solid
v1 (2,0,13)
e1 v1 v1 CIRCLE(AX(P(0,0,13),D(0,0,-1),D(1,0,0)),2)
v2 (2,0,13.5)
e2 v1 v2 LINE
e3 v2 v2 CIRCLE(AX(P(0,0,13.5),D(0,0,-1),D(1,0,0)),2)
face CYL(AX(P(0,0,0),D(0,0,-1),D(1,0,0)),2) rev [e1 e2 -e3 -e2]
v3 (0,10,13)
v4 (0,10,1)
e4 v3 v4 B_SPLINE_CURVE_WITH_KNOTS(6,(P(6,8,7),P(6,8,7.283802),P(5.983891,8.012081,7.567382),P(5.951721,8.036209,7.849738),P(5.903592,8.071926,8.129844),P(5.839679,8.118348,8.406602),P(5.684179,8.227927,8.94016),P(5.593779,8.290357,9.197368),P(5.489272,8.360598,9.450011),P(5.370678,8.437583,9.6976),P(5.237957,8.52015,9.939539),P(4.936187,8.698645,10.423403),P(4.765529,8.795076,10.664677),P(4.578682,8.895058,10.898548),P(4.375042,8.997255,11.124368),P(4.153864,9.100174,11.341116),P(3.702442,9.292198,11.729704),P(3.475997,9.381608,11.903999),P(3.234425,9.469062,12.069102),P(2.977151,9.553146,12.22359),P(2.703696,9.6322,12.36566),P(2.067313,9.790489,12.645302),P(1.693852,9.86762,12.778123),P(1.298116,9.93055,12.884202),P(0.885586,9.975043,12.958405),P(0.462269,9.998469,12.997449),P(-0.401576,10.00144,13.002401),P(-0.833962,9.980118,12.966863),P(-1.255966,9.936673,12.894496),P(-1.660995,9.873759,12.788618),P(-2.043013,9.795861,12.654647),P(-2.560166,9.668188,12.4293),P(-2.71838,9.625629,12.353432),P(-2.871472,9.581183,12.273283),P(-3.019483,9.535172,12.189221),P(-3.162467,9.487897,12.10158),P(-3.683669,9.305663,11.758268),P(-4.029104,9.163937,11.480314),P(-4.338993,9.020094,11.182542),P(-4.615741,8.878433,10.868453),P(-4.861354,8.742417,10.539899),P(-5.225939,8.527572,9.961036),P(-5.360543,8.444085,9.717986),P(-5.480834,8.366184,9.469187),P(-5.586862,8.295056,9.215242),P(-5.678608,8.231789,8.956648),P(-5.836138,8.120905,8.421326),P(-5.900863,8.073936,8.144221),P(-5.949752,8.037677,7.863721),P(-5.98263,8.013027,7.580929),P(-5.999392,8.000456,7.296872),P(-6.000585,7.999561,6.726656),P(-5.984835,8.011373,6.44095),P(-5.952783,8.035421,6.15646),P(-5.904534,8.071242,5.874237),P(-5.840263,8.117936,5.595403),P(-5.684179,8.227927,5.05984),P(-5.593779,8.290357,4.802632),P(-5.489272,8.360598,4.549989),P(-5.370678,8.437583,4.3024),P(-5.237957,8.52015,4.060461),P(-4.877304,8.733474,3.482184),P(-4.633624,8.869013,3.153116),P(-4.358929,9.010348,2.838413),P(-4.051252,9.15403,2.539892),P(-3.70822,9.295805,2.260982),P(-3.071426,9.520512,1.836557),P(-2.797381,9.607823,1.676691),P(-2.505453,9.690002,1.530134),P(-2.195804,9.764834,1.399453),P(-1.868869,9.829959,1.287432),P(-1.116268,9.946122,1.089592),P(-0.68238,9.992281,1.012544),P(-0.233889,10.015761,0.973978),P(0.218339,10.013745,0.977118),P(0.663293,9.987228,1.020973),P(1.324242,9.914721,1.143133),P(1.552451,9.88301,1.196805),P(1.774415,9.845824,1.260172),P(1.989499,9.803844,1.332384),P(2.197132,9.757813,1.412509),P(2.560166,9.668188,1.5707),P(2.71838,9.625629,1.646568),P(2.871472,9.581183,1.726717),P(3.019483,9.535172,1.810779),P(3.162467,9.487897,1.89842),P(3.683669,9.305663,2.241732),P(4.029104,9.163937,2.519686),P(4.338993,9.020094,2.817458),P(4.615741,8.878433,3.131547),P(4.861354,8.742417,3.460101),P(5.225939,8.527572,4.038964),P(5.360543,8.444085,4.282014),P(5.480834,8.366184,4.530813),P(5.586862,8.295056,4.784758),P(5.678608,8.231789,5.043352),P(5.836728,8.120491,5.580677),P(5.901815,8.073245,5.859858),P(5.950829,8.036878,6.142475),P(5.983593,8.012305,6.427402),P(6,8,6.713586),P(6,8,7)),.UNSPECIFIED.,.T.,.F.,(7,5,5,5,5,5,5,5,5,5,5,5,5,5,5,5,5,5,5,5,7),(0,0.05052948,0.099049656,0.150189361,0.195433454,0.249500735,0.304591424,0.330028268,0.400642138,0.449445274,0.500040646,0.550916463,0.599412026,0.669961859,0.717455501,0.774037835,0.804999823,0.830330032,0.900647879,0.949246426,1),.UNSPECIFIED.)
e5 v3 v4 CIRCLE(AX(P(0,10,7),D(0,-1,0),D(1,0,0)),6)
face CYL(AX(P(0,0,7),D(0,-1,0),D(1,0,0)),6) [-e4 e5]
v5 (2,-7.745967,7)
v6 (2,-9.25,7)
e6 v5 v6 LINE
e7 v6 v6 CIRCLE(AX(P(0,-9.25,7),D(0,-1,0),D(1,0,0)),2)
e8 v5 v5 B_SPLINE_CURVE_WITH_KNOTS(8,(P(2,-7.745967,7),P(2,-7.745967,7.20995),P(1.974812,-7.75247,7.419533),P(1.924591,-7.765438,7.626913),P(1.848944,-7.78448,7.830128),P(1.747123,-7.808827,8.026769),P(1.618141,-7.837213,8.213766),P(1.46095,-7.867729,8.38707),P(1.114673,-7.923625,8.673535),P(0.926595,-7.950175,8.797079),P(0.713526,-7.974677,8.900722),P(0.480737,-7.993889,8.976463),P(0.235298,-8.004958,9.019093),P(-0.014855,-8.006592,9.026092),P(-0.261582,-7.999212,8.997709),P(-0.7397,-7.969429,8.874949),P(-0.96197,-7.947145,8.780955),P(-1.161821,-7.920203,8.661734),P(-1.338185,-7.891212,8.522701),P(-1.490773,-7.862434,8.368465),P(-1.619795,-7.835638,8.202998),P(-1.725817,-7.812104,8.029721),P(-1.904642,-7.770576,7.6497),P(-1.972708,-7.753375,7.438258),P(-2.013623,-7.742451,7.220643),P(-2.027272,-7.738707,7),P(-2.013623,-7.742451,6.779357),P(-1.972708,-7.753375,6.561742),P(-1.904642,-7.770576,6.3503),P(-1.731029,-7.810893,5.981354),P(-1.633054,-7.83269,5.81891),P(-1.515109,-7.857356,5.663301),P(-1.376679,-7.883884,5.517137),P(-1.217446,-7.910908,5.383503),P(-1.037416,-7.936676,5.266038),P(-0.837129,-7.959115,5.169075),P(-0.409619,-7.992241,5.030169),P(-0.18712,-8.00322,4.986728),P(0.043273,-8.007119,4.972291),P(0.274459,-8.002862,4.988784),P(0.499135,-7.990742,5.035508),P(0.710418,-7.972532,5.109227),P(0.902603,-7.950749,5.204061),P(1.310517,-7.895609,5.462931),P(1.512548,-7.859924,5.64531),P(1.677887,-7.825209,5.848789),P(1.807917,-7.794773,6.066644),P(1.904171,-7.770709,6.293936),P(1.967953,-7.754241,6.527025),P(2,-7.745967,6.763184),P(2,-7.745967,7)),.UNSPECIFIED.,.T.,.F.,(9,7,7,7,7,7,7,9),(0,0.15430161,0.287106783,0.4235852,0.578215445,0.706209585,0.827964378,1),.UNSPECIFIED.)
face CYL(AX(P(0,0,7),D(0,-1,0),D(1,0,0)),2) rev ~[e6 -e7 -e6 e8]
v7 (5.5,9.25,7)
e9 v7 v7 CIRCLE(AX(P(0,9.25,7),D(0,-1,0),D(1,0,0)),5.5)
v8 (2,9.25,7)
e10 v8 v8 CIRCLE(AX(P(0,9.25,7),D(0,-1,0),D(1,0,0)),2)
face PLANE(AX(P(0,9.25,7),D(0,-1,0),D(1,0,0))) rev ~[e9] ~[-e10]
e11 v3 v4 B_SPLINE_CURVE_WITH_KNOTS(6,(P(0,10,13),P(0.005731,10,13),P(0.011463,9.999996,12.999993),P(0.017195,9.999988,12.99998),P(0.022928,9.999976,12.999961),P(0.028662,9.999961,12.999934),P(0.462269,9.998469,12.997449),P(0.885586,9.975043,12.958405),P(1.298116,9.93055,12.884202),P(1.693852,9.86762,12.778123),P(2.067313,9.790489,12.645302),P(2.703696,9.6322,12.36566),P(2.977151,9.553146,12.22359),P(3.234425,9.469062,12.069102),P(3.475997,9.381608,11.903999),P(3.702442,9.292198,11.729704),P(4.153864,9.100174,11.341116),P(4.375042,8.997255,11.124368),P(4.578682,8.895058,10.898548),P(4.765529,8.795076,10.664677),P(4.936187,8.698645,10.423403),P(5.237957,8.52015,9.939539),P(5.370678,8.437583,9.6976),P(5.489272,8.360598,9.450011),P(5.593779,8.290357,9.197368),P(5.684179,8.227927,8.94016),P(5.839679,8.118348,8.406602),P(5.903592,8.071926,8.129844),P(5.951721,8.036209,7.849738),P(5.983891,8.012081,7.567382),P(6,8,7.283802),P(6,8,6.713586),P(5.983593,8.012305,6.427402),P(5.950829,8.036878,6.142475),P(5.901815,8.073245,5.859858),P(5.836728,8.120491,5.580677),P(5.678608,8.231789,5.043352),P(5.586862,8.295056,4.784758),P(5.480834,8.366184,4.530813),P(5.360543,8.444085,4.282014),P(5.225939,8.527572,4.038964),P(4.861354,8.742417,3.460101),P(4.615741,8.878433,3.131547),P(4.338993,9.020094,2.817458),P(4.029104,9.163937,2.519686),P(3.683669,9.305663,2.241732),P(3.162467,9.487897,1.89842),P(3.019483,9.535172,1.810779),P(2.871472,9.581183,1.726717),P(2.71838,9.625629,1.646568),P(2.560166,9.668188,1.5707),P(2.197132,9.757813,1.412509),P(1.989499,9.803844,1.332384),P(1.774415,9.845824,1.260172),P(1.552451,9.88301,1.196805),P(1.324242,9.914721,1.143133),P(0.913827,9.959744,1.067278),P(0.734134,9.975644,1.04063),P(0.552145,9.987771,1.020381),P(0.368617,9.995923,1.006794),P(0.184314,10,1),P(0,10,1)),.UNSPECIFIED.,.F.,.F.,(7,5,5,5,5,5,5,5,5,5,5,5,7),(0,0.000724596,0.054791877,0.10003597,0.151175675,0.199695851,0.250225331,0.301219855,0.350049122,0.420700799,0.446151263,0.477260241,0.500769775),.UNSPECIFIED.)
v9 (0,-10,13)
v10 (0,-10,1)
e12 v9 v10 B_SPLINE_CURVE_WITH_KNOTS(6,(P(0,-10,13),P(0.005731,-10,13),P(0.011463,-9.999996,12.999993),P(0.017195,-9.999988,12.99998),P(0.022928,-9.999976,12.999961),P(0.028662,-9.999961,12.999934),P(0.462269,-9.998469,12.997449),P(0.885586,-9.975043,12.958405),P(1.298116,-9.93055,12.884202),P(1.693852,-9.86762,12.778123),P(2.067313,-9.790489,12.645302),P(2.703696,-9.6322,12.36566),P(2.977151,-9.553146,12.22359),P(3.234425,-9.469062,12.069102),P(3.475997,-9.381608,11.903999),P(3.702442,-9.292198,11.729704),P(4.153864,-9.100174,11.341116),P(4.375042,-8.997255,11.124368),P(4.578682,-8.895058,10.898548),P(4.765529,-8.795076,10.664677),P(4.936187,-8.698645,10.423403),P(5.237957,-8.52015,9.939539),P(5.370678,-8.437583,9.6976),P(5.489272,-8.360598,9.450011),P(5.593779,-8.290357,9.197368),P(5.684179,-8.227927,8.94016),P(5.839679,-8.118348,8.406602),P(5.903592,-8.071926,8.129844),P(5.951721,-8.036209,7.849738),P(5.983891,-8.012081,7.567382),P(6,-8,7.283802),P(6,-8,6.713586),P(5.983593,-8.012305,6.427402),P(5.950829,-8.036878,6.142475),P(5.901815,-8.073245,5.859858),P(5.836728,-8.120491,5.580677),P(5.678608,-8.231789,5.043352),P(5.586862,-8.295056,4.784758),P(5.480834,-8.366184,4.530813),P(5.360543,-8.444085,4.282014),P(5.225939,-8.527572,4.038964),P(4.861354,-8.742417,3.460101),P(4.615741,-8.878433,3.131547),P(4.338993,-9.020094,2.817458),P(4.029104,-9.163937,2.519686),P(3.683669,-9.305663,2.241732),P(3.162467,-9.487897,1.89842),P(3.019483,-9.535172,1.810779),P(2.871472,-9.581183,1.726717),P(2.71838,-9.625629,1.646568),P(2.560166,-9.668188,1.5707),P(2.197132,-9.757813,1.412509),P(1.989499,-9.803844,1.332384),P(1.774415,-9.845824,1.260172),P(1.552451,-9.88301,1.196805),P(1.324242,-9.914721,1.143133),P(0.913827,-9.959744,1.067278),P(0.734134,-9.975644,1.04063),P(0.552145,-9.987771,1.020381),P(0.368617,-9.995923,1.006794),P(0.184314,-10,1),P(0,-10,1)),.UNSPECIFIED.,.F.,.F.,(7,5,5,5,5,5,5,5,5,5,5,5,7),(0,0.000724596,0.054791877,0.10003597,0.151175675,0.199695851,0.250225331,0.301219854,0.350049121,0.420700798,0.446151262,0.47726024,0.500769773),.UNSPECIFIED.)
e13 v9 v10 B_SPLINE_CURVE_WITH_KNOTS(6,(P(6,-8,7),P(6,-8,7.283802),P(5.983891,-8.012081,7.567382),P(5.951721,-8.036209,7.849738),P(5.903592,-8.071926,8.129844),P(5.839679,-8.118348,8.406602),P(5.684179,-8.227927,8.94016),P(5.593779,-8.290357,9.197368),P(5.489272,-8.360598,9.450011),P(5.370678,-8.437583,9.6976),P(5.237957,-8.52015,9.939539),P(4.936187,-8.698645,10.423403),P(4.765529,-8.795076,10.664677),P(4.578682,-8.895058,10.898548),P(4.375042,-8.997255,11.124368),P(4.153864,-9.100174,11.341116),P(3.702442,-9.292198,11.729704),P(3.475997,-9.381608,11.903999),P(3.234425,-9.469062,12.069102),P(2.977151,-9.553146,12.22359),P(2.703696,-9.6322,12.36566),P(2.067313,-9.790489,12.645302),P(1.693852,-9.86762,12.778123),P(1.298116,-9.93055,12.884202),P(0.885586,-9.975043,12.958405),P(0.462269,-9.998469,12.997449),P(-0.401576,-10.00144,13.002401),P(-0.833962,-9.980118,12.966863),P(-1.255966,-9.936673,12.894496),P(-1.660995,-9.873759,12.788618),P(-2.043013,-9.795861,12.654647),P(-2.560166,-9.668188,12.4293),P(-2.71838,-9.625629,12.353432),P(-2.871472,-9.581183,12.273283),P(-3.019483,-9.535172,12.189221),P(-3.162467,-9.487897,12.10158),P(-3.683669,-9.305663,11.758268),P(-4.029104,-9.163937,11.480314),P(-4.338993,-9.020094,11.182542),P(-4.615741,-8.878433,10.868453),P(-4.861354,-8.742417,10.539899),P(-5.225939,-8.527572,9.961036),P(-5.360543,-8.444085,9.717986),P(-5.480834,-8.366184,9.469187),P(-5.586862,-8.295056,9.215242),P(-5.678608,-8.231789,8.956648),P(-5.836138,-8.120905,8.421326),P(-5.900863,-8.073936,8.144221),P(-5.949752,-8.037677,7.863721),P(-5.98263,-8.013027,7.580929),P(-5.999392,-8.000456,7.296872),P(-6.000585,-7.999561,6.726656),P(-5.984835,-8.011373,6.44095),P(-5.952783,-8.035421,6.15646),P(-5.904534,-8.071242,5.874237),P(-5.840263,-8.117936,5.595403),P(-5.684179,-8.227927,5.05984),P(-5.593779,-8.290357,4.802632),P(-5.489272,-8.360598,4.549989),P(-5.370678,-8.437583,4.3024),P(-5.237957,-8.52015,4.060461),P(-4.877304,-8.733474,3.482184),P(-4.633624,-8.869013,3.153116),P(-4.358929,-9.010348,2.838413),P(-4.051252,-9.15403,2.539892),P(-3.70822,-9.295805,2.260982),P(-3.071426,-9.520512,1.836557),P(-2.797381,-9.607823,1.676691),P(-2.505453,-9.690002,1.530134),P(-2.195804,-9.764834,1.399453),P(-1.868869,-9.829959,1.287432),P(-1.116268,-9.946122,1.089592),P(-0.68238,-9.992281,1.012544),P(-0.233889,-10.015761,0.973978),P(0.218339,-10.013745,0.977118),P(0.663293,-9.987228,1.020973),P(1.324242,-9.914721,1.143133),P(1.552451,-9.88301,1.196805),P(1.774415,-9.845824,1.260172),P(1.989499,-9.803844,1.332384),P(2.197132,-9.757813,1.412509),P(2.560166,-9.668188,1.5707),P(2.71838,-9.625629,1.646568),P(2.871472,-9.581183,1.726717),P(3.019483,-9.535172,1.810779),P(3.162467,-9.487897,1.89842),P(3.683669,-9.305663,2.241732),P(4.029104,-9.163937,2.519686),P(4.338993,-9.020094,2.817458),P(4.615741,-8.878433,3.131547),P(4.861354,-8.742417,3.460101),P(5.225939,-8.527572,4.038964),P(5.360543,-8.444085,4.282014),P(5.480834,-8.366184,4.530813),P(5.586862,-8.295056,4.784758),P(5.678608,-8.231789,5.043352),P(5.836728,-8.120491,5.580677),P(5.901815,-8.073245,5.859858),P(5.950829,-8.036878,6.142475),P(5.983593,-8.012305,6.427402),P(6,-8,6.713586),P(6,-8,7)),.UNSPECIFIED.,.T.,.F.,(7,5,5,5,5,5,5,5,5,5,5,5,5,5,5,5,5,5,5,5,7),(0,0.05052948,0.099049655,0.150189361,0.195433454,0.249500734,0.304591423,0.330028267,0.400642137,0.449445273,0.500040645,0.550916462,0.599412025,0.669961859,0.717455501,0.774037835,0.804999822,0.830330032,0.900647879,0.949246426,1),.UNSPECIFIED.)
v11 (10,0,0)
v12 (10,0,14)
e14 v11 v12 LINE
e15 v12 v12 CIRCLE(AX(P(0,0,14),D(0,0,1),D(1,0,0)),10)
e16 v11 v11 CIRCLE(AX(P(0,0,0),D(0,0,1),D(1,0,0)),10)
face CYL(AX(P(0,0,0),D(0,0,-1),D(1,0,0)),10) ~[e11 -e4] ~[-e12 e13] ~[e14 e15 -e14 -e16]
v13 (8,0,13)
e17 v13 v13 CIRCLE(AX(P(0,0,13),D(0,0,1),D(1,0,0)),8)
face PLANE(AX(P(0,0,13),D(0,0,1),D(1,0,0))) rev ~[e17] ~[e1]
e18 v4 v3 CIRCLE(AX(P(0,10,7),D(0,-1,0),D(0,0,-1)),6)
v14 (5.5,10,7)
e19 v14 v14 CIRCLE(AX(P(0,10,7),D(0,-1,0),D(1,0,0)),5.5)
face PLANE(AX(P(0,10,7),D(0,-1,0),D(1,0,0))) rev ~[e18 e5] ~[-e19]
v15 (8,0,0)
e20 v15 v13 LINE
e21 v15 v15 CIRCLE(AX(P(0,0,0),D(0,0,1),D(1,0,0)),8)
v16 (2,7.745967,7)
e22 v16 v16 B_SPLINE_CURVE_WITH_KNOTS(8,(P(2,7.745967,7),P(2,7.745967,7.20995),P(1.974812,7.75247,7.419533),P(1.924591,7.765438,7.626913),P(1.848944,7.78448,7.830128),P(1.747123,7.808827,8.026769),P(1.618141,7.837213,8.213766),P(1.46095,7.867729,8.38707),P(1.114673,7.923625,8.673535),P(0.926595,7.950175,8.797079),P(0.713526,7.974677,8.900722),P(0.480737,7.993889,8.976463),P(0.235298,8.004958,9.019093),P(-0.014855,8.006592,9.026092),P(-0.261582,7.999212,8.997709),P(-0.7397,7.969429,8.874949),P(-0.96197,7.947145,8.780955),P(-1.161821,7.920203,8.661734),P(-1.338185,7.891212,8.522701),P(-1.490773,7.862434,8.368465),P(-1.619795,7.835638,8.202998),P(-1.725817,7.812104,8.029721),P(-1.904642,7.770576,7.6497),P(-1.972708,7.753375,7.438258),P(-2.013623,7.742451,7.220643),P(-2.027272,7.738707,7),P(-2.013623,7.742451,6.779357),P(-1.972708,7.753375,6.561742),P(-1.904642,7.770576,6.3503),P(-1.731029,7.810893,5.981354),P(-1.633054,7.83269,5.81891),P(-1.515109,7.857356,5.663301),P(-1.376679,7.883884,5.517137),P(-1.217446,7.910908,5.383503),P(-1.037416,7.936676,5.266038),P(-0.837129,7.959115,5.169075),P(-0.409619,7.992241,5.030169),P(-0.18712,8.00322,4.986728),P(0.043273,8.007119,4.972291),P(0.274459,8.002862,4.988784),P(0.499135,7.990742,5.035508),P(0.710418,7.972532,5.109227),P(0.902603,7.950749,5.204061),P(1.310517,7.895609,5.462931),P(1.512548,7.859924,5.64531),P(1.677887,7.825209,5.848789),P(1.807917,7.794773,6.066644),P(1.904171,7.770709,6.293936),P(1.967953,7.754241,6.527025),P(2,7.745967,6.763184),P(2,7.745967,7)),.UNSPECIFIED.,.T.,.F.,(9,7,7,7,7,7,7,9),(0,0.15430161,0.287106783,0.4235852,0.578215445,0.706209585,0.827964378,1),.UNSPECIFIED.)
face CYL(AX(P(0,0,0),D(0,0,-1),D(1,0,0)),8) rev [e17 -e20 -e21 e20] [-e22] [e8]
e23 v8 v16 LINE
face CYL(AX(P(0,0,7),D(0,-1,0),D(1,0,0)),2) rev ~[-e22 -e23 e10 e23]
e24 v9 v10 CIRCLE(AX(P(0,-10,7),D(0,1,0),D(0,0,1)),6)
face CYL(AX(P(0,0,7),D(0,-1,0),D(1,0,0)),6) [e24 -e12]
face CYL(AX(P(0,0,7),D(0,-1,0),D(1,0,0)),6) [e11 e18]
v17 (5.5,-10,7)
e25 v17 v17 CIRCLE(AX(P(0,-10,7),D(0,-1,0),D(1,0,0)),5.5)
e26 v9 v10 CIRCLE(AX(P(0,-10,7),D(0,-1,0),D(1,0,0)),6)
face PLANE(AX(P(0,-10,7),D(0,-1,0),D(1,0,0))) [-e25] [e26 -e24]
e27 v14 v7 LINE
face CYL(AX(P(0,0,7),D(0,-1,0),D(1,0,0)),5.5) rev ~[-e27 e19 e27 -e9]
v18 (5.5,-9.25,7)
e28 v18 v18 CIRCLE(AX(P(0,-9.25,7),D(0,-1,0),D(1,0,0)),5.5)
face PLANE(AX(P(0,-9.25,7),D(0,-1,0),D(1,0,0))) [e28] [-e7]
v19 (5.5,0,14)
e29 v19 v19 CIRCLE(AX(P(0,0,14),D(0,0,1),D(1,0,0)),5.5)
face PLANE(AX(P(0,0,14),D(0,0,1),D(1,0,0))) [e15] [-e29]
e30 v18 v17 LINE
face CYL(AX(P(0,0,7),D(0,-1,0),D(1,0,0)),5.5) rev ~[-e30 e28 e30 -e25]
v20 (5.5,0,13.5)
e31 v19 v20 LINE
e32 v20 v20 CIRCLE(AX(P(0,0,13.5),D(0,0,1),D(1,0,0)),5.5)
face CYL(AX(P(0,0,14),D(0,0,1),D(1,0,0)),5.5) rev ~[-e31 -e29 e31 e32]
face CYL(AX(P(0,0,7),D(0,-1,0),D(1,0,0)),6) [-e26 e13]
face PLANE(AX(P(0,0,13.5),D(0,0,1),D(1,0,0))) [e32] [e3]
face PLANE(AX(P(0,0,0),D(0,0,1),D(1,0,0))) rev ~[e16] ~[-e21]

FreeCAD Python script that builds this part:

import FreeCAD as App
import Part
import Sketcher
from FreeCAD import Vector
Q = App.Units.Quantity

doc = App.newDocument("Part")
body = doc.addObject("PartDesign::Body", "Body")

sketch1 = body.newObject("Sketcher::SketchObject", "Sketch")
sketch1.AttachmentSupport = (doc.getObject("XY_Plane"), [""])
sketch1.MapMode = "FlatFace"
sketch1.addGeometry(Part.Circle(Vector(0, 0, 0), Vector(0, 0, 1), 10), False)
sketch1.addConstraint(Sketcher.Constraint("Coincident", 0, 3, -1, 1))
sketch1.addConstraint(Sketcher.Constraint("Diameter", 0, Q("20 mm")))
pad1 = body.newObject("PartDesign::Pad", "Pad")
pad1.Profile = sketch1
pad1.Length = 14

sketch2 = body.newObject("Sketcher::SketchObject", "Sketch001")
sketch2.AttachmentSupport = (doc.getObject("XZ_Plane"), [""])
sketch2.MapMode = "FlatFace"
sketch2.addGeometry(Part.Circle(Vector(0, 7, 0), Vector(0, 0, 1), 6), False)
sketch2.addConstraint(Sketcher.Constraint("PointOnObject", 0, 3, -2))
sketch2.addConstraint(Sketcher.Constraint("Diameter", 0, Q("12 mm")))
sketch2.addConstraint(Sketcher.Constraint("DistanceY", -1, 1, 0, 3, Q("7 mm")))
pad2 = body.newObject("PartDesign::Pad", "Pad001")
pad2.Profile = sketch2
pad2.Length = 20
pad2.Midplane = True

sketch3 = body.newObject("Sketcher::SketchObject", "Sketch002")
sketch3.AttachmentSupport = (doc.getObject("XZ_Plane"), [""])
sketch3.MapMode = "FlatFace"
sketch3.addGeometry(Part.Circle(Vector(0, 7, 0), Vector(0, 0, 1), 6), False)
sketch3.addConstraint(Sketcher.Constraint("PointOnObject", 0, 3, -2))
sketch3.addConstraint(Sketcher.Constraint("Diameter", 0, Q("11 mm")))
sketch3.addConstraint(Sketcher.Constraint("DistanceY", -1, 1, 0, 3, Q("7 mm")))
pocket1 = body.newObject("PartDesign::Pocket", "Pocket")
pocket1.Profile = sketch3
pocket1.Length = 25
pocket1.Midplane = True

sketch4 = body.newObject("Sketcher::SketchObject", "Sketch003")
sketch4.AttachmentSupport = (doc.getObject("XZ_Plane"), [""])
sketch4.MapMode = "FlatFace"
sketch4.addGeometry(Part.Circle(Vector(0, 7, 0), Vector(0, 0, 1), 6), False)
sketch4.addConstraint(Sketcher.Constraint("PointOnObject", 0, 3, -2))
sketch4.addConstraint(Sketcher.Constraint("Diameter", 0, Q("11 mm")))
sketch4.addConstraint(Sketcher.Constraint("DistanceY", -1, 1, 0, 3, Q("7 mm")))
pad3 = body.newObject("PartDesign::Pad", "Pad002")
pad3.Profile = sketch4
pad3.Length = 18.5
pad3.Midplane = True

sketch5 = body.newObject("Sketcher::SketchObject", "Sketch004")
sketch5.AttachmentSupport = (doc.getObject("XZ_Plane"), [""])
sketch5.MapMode = "FlatFace"
sketch5.addGeometry(Part.Circle(Vector(0, 7, 0), Vector(0, 0, 1), 2), False)
sketch5.addConstraint(Sketcher.Constraint("PointOnObject", 0, 3, -2))
sketch5.addConstraint(Sketcher.Constraint("Diameter", 0, Q("4 mm")))
sketch5.addConstraint(Sketcher.Constraint("DistanceY", -1, 1, 0, 3, Q("7 mm")))
pocket2 = body.newObject("PartDesign::Pocket", "Pocket001")
pocket2.Profile = sketch5
pocket2.Length = 25
pocket2.Midplane = True

sketch6 = body.newObject("Sketcher::SketchObject", "Sketch005")
sketch6.AttachmentSupport = (doc.getObject("XY_Plane"), [""])
sketch6.MapMode = "FlatFace"
sketch6.addGeometry(Part.Circle(Vector(0, 0, 0), Vector(0, 0, 1), 8), False)
sketch6.addConstraint(Sketcher.Constraint("Coincident", 0, 3, -1, 1))
sketch6.addConstraint(Sketcher.Constraint("Diameter", 0, Q("16 mm")))
pocket3 = body.newObject("PartDesign::Pocket", "Pocket002")
pocket3.Profile = sketch6
pocket3.Length = 13
pocket3.Reversed = True

sketch7 = body.newObject("Sketcher::SketchObject", "Sketch006")
sketch7.AttachmentSupport = (doc.getObject("XY_Plane"), [""])
sketch7.MapMode = "FlatFace"
sketch7.AttachmentOffset = App.Placement(Vector(0, 0, 14), App.Rotation())
sketch7.addGeometry(Part.Circle(Vector(0, 0, 0), Vector(0, 0, 1), 6), False)
sketch7.addConstraint(Sketcher.Constraint("Coincident", 0, 3, -1, 1))
sketch7.addConstraint(Sketcher.Constraint("Diameter", 0, Q("11 mm")))
pocket4 = body.newObject("PartDesign::Pocket", "Pocket003")
pocket4.Profile = sketch7
pocket4.Length = 0.5

sketch8 = body.newObject("Sketcher::SketchObject", "Sketch007")
sketch8.AttachmentSupport = (doc.getObject("XY_Plane"), [""])
sketch8.MapMode = "FlatFace"
sketch8.addGeometry(Part.Circle(Vector(0, 0, 0), Vector(0, 0, 1), 2), False)
sketch8.addConstraint(Sketcher.Constraint("Coincident", 0, 3, -1, 1))
sketch8.addConstraint(Sketcher.Constraint("Diameter", 0, Q("4 mm")))
pocket5 = body.newObject("PartDesign::Pocket", "Pocket004")
pocket5.Profile = sketch8
pocket5.Length = 25
pocket5.Reversed = True

doc.recompute()
